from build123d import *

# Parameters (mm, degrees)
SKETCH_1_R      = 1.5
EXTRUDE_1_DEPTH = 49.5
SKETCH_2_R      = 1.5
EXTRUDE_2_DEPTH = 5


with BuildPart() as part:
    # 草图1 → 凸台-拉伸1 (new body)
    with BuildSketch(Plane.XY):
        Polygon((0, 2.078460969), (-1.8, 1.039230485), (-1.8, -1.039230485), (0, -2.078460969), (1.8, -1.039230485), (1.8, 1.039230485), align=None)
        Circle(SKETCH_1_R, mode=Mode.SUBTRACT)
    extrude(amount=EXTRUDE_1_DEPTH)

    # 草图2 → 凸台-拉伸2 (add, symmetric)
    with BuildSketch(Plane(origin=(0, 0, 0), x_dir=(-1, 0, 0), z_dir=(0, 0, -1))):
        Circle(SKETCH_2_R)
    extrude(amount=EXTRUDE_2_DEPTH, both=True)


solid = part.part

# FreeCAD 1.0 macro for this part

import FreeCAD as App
import Part
import Sketcher
from FreeCAD import Vector
Q = App.Units.Quantity

doc = App.newDocument("Part")
body = doc.addObject("PartDesign::Body", "Body")

sketch1 = body.newObject("Sketcher::SketchObject", "Sketch")
sketch1.AttachmentSupport = (doc.getObject("XY_Plane"), [""])
sketch1.MapMode = "FlatFace"
sketch1.addGeometry(Part.LineSegment(Vector(0, 2.1, 0), Vector(-1.8, 1, 0)), False)
sketch1.addGeometry(Part.LineSegment(Vector(-1.8, 1, 0), Vector(-1.8, -1, 0)), False)
sketch1.addGeometry(Part.LineSegment(Vector(-1.8, -1, 0), Vector(0, -2.1, 0)), False)
sketch1.addGeometry(Part.LineSegment(Vector(0, -2.1, 0), Vector(1.8, -1, 0)), False)
sketch1.addGeometry(Part.LineSegment(Vector(1.8, -1, 0), Vector(1.8, 1, 0)), False)
sketch1.addGeometry(Part.LineSegment(Vector(1.8, 1, 0), Vector(0, 2.1, 0)), False)
sketch1.addGeometry(Part.Circle(Vector(0, 0, 0), Vector(0, 0, 1), 1.5), False)
sketch1.addConstraint(Sketcher.Constraint("Coincident", 0, 2, 1, 1))
sketch1.addConstraint(Sketcher.Constraint("Coincident", 1, 2, 2, 1))
sketch1.addConstraint(Sketcher.Constraint("Coincident", 2, 2, 3, 1))
sketch1.addConstraint(Sketcher.Constraint("Coincident", 3, 2, 4, 1))
sketch1.addConstraint(Sketcher.Constraint("Coincident", 4, 2, 5, 1))
sketch1.addConstraint(Sketcher.Constraint("Coincident", 5, 2, 0, 1))
sketch1.addConstraint(Sketcher.Constraint("Vertical", 1))
sketch1.addConstraint(Sketcher.Constraint("Vertical", 4))
sketch1.addConstraint(Sketcher.Constraint("Coincident", 6, 3, -1, 1))
sketch1.addConstraint(Sketcher.Constraint("Symmetric", 0, 2, 3, 2, -1, 1))
sketch1.addConstraint(Sketcher.Constraint("Symmetric", 2, 2, 5, 2, -1, 1))
sketch1.addConstraint(Sketcher.Constraint("PointOnObject", 2, 2, -2))
sketch1.addConstraint(Sketcher.Constraint("Parallel", 2, 5))
sketch1.addConstraint(Sketcher.Constraint("Horizontal", 1, 2, 3, 2))
sketch1.addConstraint(Sketcher.Constraint("Diameter", 6, Q("3 mm")))
sketch1.addConstraint(Sketcher.Constraint("Angle", 0, Q("-150 deg")))
sketch1.addConstraint(Sketcher.Constraint("DistanceX", 0, 2, -1, 1, Q("1.8 mm")))
sketch1.addConstraint(Sketcher.Constraint("DistanceY", 1, 2, 1, 1, Q("2.078461 mm")))
pad1 = body.newObject("PartDesign::Pad", "Pad")
pad1.Profile = sketch1
pad1.Length = 49.5

sketch2 = body.newObject("Sketcher::SketchObject", "Sketch001")
sketch2.AttachmentSupport = (doc.getObject("XY_Plane"), [""])
sketch2.MapMode = "FlatFace"
sketch2.addGeometry(Part.Circle(Vector(0, 0, 0), Vector(0, 0, 1), 1.5), False)
sketch2.addConstraint(Sketcher.Constraint("Coincident", 0, 3, -1, 1))
sketch2.addConstraint(Sketcher.Constraint("Diameter", 0, Q("3 mm")))
pad2 = body.newObject("PartDesign::Pad", "Pad001")
pad2.Profile = sketch2
pad2.Length = 10
pad2.Midplane = True

doc.recompute()
